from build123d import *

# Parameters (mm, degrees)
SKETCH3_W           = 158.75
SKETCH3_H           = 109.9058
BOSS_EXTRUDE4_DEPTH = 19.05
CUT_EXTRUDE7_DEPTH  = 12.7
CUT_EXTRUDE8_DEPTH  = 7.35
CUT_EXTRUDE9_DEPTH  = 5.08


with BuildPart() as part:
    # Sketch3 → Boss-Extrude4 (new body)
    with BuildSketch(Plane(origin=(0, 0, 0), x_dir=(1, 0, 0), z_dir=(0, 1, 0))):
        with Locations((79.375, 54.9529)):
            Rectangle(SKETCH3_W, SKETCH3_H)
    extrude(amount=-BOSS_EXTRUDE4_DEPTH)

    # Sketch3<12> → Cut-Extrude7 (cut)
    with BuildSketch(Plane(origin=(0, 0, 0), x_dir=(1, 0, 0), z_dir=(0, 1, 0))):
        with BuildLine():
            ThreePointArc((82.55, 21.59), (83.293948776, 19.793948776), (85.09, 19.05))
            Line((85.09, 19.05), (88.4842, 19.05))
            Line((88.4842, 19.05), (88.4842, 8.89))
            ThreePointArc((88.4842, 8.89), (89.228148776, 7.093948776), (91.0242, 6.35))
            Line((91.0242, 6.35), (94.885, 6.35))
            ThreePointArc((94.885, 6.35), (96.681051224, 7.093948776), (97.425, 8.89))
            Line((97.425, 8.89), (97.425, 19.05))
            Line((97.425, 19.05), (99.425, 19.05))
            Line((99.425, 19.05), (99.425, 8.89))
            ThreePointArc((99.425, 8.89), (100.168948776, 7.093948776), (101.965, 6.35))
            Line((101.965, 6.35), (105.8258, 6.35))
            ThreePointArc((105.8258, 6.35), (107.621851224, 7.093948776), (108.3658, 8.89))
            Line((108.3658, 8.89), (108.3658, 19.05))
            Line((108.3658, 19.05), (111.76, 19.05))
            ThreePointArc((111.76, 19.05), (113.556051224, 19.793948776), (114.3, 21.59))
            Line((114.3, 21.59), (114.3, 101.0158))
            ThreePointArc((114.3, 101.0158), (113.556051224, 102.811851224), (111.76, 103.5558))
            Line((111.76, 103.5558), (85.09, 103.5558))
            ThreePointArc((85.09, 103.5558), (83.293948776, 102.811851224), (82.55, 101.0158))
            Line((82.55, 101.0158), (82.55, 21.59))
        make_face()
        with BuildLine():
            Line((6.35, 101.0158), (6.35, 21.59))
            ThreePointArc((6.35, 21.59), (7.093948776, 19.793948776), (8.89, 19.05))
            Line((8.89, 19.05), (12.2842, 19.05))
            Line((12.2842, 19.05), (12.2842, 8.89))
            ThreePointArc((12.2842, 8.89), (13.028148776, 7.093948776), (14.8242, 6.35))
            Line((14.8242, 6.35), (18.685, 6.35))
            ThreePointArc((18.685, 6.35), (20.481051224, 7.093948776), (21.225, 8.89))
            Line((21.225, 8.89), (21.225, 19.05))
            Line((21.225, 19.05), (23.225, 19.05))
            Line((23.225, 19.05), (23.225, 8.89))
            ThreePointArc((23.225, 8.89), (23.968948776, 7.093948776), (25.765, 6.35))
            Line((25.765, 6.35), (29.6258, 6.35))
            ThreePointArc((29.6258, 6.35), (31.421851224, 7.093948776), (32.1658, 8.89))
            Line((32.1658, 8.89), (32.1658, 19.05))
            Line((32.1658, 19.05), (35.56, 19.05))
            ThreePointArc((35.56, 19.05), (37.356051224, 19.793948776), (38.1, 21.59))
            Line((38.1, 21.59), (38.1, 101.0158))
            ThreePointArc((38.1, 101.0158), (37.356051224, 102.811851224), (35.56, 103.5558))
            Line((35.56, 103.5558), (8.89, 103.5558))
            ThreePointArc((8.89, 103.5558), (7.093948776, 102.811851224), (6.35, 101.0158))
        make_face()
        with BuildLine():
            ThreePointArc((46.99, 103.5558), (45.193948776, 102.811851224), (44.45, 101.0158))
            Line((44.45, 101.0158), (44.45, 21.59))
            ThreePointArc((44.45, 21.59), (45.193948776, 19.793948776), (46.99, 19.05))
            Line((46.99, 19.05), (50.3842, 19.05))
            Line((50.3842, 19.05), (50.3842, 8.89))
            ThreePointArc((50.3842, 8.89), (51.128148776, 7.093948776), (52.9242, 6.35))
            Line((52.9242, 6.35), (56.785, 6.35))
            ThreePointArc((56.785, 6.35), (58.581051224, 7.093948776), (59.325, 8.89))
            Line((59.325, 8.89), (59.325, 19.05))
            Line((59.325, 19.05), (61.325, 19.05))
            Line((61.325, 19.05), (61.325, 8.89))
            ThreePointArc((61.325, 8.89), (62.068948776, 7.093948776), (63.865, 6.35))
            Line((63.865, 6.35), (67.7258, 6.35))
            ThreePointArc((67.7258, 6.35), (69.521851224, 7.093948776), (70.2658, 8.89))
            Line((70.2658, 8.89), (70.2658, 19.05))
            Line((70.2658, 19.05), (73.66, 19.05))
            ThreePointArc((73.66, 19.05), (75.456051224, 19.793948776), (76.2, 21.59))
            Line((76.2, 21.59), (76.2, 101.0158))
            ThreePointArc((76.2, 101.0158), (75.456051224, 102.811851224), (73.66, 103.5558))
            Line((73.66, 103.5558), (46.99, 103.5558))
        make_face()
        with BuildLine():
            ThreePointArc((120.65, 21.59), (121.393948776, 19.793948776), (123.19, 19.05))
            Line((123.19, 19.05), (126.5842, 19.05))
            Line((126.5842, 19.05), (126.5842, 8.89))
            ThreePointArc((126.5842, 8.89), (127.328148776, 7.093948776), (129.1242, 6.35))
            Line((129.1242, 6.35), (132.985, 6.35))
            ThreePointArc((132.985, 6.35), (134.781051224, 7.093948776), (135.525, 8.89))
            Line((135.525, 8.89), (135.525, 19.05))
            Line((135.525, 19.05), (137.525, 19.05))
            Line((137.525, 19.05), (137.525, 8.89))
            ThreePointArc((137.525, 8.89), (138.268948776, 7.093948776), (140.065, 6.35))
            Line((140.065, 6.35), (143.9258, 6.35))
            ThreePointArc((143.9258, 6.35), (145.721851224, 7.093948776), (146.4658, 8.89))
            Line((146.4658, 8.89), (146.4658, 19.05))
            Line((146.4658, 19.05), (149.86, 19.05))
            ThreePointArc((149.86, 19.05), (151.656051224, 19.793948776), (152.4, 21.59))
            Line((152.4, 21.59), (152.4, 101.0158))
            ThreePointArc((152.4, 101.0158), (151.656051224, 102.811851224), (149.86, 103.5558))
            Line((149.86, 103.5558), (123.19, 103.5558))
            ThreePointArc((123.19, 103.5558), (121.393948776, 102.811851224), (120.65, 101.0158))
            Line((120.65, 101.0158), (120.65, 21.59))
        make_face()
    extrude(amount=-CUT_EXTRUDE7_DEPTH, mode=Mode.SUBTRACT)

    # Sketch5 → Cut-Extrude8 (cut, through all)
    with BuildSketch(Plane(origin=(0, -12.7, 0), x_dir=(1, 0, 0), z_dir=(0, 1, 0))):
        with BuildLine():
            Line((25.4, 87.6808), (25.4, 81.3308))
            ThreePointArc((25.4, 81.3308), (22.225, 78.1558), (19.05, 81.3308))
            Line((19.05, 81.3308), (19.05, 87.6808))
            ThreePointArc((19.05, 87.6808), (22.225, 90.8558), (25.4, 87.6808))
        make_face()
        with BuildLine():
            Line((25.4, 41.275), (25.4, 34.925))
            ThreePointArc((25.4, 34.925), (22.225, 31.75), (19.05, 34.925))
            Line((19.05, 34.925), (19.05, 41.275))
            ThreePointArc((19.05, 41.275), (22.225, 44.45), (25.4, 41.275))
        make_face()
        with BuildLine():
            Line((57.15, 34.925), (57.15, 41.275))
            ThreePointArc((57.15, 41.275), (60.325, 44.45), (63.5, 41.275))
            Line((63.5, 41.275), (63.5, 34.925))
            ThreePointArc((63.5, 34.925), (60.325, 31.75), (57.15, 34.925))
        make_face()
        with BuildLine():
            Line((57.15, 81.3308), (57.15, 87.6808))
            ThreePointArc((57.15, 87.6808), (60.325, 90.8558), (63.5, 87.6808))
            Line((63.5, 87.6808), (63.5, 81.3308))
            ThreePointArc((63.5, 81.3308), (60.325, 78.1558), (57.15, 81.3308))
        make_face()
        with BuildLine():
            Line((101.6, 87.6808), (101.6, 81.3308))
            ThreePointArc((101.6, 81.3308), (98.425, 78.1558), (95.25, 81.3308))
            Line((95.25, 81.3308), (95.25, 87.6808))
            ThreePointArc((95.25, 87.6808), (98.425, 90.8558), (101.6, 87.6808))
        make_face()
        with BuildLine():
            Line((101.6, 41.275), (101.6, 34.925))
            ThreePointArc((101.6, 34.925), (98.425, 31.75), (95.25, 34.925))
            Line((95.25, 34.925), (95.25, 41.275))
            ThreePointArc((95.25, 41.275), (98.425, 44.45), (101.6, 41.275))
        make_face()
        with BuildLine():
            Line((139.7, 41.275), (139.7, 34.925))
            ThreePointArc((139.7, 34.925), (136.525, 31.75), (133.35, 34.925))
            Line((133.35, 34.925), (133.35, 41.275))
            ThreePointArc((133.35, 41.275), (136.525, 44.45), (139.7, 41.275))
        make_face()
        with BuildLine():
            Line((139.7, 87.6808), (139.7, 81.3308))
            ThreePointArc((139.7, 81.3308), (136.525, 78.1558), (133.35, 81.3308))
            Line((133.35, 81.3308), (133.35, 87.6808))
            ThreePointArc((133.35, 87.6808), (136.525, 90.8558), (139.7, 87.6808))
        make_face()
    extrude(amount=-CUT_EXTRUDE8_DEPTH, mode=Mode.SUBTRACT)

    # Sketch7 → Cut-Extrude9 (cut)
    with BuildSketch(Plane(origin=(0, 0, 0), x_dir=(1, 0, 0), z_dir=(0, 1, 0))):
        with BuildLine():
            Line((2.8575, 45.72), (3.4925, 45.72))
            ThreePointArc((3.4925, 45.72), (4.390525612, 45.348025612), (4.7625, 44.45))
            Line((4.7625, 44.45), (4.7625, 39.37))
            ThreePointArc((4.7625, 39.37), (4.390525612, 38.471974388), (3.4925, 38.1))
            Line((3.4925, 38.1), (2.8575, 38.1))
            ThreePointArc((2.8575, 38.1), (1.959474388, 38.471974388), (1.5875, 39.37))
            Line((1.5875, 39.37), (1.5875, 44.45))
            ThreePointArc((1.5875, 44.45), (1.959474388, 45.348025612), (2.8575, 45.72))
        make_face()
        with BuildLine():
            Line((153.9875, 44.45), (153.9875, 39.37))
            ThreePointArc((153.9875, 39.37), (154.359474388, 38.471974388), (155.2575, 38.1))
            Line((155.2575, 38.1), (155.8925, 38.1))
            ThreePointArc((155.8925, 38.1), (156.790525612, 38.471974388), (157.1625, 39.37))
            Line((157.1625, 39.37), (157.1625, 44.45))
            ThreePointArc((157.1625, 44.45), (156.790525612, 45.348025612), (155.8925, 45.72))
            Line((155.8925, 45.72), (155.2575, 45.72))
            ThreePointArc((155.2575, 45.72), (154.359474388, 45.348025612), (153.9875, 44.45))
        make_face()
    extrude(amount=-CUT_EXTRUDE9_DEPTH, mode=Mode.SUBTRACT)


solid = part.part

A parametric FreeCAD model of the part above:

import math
import FreeCAD as App
import Part
import Sketcher
from FreeCAD import Vector
Q = App.Units.Quantity

doc = App.newDocument("Part")
body = doc.addObject("PartDesign::Body", "Body")

sketch1 = body.newObject("Sketcher::SketchObject", "Sketch")
sketch1.AttachmentSupport = (doc.getObject("XZ_Plane"), [""])
sketch1.MapMode = "FlatFace"
sketch1.addGeometry(Part.LineSegment(Vector(0, -110, 0), Vector(0, 0, 0)), False)
sketch1.addGeometry(Part.LineSegment(Vector(0, 0, 0), Vector(159, 0, 0)), False)
sketch1.addGeometry(Part.LineSegment(Vector(159, 0, 0), Vector(159, -110, 0)), False)
sketch1.addGeometry(Part.LineSegment(Vector(159, -110, 0), Vector(0, -110, 0)), False)
sketch1.addConstraint(Sketcher.Constraint("Coincident", 0, 2, 1, 1))
sketch1.addConstraint(Sketcher.Constraint("Coincident", 1, 2, 2, 1))
sketch1.addConstraint(Sketcher.Constraint("Coincident", 2, 2, 3, 1))
sketch1.addConstraint(Sketcher.Constraint("Coincident", 3, 2, 0, 1))
sketch1.addConstraint(Sketcher.Constraint("Vertical", 0))
sketch1.addConstraint(Sketcher.Constraint("Horizontal", 1))
sketch1.addConstraint(Sketcher.Constraint("Vertical", 2))
sketch1.addConstraint(Sketcher.Constraint("Horizontal", 3))
sketch1.addConstraint(Sketcher.Constraint("Coincident", 0, 2, -1, 1))
sketch1.addConstraint(Sketcher.Constraint("DistanceX", 1, 1, 1, 2, Q("6.25 in")))
sketch1.addConstraint(Sketcher.Constraint("DistanceY", 0, 1, 0, 2, Q("4.327 in")))
pad1 = body.newObject("PartDesign::Pad", "Pad")
pad1.Profile = sketch1
pad1.Length = Q("0.75 in")

sketch2 = body.newObject("Sketcher::SketchObject", "Sketch001")
sketch2.AttachmentSupport = (doc.getObject("XZ_Plane"), [""])
sketch2.MapMode = "FlatFace"
sketch2.addGeometry(Part.ArcOfCircle(Part.Circle(Vector(85.1, -21.6, 0), Vector(0, 0, 1), 2.5), math.radians(90), math.radians(180)), False)
sketch2.addGeometry(Part.LineSegment(Vector(85.1, -19.1, 0), Vector(88.5, -19.1, 0)), False)
sketch2.addGeometry(Part.LineSegment(Vector(88.5, -19.1, 0), Vector(88.5, -8.9, 0)), False)
sketch2.addGeometry(Part.ArcOfCircle(Part.Circle(Vector(91, -8.9, 0), Vector(0, 0, 1), 2.5), math.radians(90), math.radians(180)), False)
sketch2.addGeometry(Part.LineSegment(Vector(91, -6.3, 0), Vector(94.9, -6.3, 0)), False)
sketch2.addGeometry(Part.ArcOfCircle(Part.Circle(Vector(94.9, -8.9, 0), Vector(0, 0, 1), 2.5), math.radians(0), math.radians(90)), False)
sketch2.addGeometry(Part.LineSegment(Vector(97.4, -8.9, 0), Vector(97.4, -19.1, 0)), False)
sketch2.addGeometry(Part.LineSegment(Vector(97.4, -19.1, 0), Vector(99.4, -19.1, 0)), False)
sketch2.addGeometry(Part.LineSegment(Vector(99.4, -19.1, 0), Vector(99.4, -8.9, 0)), False)
sketch2.addGeometry(Part.ArcOfCircle(Part.Circle(Vector(102, -8.9, 0), Vector(0, 0, 1), 2.5), math.radians(90), math.radians(180)), False)
sketch2.addGeometry(Part.LineSegment(Vector(102, -6.3, 0), Vector(105.8, -6.3, 0)), False)
sketch2.addGeometry(Part.ArcOfCircle(Part.Circle(Vector(105.8, -8.9, 0), Vector(0, 0, 1), 2.5), math.radians(0), math.radians(90)), False)
sketch2.addGeometry(Part.LineSegment(Vector(108.4, -8.9, 0), Vector(108.4, -19.1, 0)), False)
sketch2.addGeometry(Part.LineSegment(Vector(108.4, -19.1, 0), Vector(111.8, -19.1, 0)), False)
sketch2.addGeometry(Part.ArcOfCircle(Part.Circle(Vector(111.8, -21.6, 0), Vector(0, 0, 1), 2.5), math.radians(0), math.radians(90)), False)
sketch2.addGeometry(Part.LineSegment(Vector(114.3, -21.6, 0), Vector(114.3, -101, 0)), False)
sketch2.addGeometry(Part.ArcOfCircle(Part.Circle(Vector(111.8, -101, 0), Vector(0, 0, 1), 2.5), math.radians(-90), math.radians(0)), False)
sketch2.addGeometry(Part.LineSegment(Vector(111.8, -103.6, 0), Vector(85.1, -103.6, 0)), False)
sketch2.addGeometry(Part.ArcOfCircle(Part.Circle(Vector(85.1, -101, 0), Vector(0, 0, 1), 2.5), math.radians(-180), math.radians(-90)), False)
sketch2.addGeometry(Part.LineSegment(Vector(82.5, -101, 0), Vector(82.5, -21.6, 0)), False)
sketch2.addGeometry(Part.LineSegment(Vector(6.3, -101, 0), Vector(6.3, -21.6, 0)), False)
sketch2.addGeometry(Part.ArcOfCircle(Part.Circle(Vector(8.9, -21.6, 0), Vector(0, 0, 1), 2.5), math.radians(90), math.radians(180)), False)
sketch2.addGeometry(Part.LineSegment(Vector(8.9, -19.1, 0), Vector(12.3, -19.1, 0)), False)
sketch2.addGeometry(Part.LineSegment(Vector(12.3, -19.1, 0), Vector(12.3, -8.9, 0)), False)
sketch2.addGeometry(Part.ArcOfCircle(Part.Circle(Vector(14.8, -8.9, 0), Vector(0, 0, 1), 2.5), math.radians(90), math.radians(180)), False)
sketch2.addGeometry(Part.LineSegment(Vector(14.8, -6.3, 0), Vector(18.7, -6.3, 0)), False)
sketch2.addGeometry(Part.ArcOfCircle(Part.Circle(Vector(18.7, -8.9, 0), Vector(0, 0, 1), 2.5), math.radians(0), math.radians(90)), False)
sketch2.addGeometry(Part.LineSegment(Vector(21.2, -8.9, 0), Vector(21.2, -19.1, 0)), False)
sketch2.addGeometry(Part.LineSegment(Vector(21.2, -19.1, 0), Vector(23.2, -19.1, 0)), False)
sketch2.addGeometry(Part.LineSegment(Vector(23.2, -19.1, 0), Vector(23.2, -8.9, 0)), False)
sketch2.addGeometry(Part.ArcOfCircle(Part.Circle(Vector(25.8, -8.9, 0), Vector(0, 0, 1), 2.5), math.radians(90), math.radians(180)), False)
sketch2.addGeometry(Part.LineSegment(Vector(25.8, -6.3, 0), Vector(29.6, -6.3, 0)), False)
sketch2.addGeometry(Part.ArcOfCircle(Part.Circle(Vector(29.6, -8.9, 0), Vector(0, 0, 1), 2.5), math.radians(0), math.radians(90)), False)
sketch2.addGeometry(Part.LineSegment(Vector(32.2, -8.9, 0), Vector(32.2, -19.1, 0)), False)
sketch2.addGeometry(Part.LineSegment(Vector(32.2, -19.1, 0), Vector(35.6, -19.1, 0)), False)
sketch2.addGeometry(Part.ArcOfCircle(Part.Circle(Vector(35.6, -21.6, 0), Vector(0, 0, 1), 2.5), math.radians(0), math.radians(90)), False)
sketch2.addGeometry(Part.LineSegment(Vector(38.1, -21.6, 0), Vector(38.1, -101, 0)), False)
sketch2.addGeometry(Part.ArcOfCircle(Part.Circle(Vector(35.6, -101, 0), Vector(0, 0, 1), 2.5), math.radians(-90), math.radians(0)), False)
sketch2.addGeometry(Part.LineSegment(Vector(35.6, -103.6, 0), Vector(8.9, -103.6, 0)), False)
sketch2.addGeometry(Part.ArcOfCircle(Part.Circle(Vector(8.9, -101, 0), Vector(0, 0, 1), 2.5), math.radians(-180), math.radians(-90)), False)
sketch2.addGeometry(Part.ArcOfCircle(Part.Circle(Vector(47, -101, 0), Vector(0, 0, 1), 2.5), math.radians(-180), math.radians(-90)), False)
sketch2.addGeometry(Part.LineSegment(Vector(44.5, -101, 0), Vector(44.5, -21.6, 0)), False)
sketch2.addGeometry(Part.ArcOfCircle(Part.Circle(Vector(47, -21.6, 0), Vector(0, 0, 1), 2.5), math.radians(90), math.radians(180)), False)
sketch2.addGeometry(Part.LineSegment(Vector(47, -19.1, 0), Vector(50.4, -19.1, 0)), False)
sketch2.addGeometry(Part.LineSegment(Vector(50.4, -19.1, 0), Vector(50.4, -8.9, 0)), False)
sketch2.addGeometry(Part.ArcOfCircle(Part.Circle(Vector(52.9, -8.9, 0), Vector(0, 0, 1), 2.5), math.radians(90), math.radians(180)), False)
sketch2.addGeometry(Part.LineSegment(Vector(52.9, -6.3, 0), Vector(56.8, -6.3, 0)), False)
sketch2.addGeometry(Part.ArcOfCircle(Part.Circle(Vector(56.8, -8.9, 0), Vector(0, 0, 1), 2.5), math.radians(0), math.radians(90)), False)
sketch2.addGeometry(Part.LineSegment(Vector(59.3, -8.9, 0), Vector(59.3, -19.1, 0)), False)
sketch2.addGeometry(Part.LineSegment(Vector(59.3, -19.1, 0), Vector(61.3, -19.1, 0)), False)
sketch2.addGeometry(Part.LineSegment(Vector(61.3, -19.1, 0), Vector(61.3, -8.9, 0)), False)
sketch2.addGeometry(Part.ArcOfCircle(Part.Circle(Vector(63.9, -8.9, 0), Vector(0, 0, 1), 2.5), math.radians(90), math.radians(180)), False)
sketch2.addGeometry(Part.LineSegment(Vector(63.9, -6.3, 0), Vector(67.7, -6.3, 0)), False)
sketch2.addGeometry(Part.ArcOfCircle(Part.Circle(Vector(67.7, -8.9, 0), Vector(0, 0, 1), 2.5), math.radians(0), math.radians(90)), False)
sketch2.addGeometry(Part.LineSegment(Vector(70.3, -8.9, 0), Vector(70.3, -19.1, 0)), False)
sketch2.addGeometry(Part.LineSegment(Vector(70.3, -19.1, 0), Vector(73.7, -19.1, 0)), False)
sketch2.addGeometry(Part.ArcOfCircle(Part.Circle(Vector(73.7, -21.6, 0), Vector(0, 0, 1), 2.5), math.radians(0), math.radians(90)), False)
sketch2.addGeometry(Part.LineSegment(Vector(76.2, -21.6, 0), Vector(76.2, -101, 0)), False)
sketch2.addGeometry(Part.ArcOfCircle(Part.Circle(Vector(73.7, -101, 0), Vector(0, 0, 1), 2.5), math.radians(-90), math.radians(0)), False)
sketch2.addGeometry(Part.LineSegment(Vector(73.7, -103.6, 0), Vector(47, -103.6, 0)), False)
sketch2.addGeometry(Part.ArcOfCircle(Part.Circle(Vector(123.2, -21.6, 0), Vector(0, 0, 1), 2.5), math.radians(90), math.radians(180)), False)
sketch2.addGeometry(Part.LineSegment(Vector(123.2, -19.1, 0), Vector(126.6, -19.1, 0)), False)
sketch2.addGeometry(Part.LineSegment(Vector(126.6, -19.1, 0), Vector(126.6, -8.9, 0)), False)
sketch2.addGeometry(Part.ArcOfCircle(Part.Circle(Vector(129.1, -8.9, 0), Vector(0, 0, 1), 2.5), math.radians(90), math.radians(180)), False)
sketch2.addGeometry(Part.LineSegment(Vector(129.1, -6.3, 0), Vector(133, -6.3, 0)), False)
sketch2.addGeometry(Part.ArcOfCircle(Part.Circle(Vector(133, -8.9, 0), Vector(0, 0, 1), 2.5), math.radians(0), math.radians(90)), False)
sketch2.addGeometry(Part.LineSegment(Vector(135.5, -8.9, 0), Vector(135.5, -19.1, 0)), False)
sketch2.addGeometry(Part.LineSegment(Vector(135.5, -19.1, 0), Vector(137.5, -19.1, 0)), False)
sketch2.addGeometry(Part.LineSegment(Vector(137.5, -19.1, 0), Vector(137.5, -8.9, 0)), False)
sketch2.addGeometry(Part.ArcOfCircle(Part.Circle(Vector(140.1, -8.9, 0), Vector(0, 0, 1), 2.5), math.radians(90), math.radians(180)), False)
sketch2.addGeometry(Part.LineSegment(Vector(140.1, -6.3, 0), Vector(143.9, -6.3, 0)), False)
sketch2.addGeometry(Part.ArcOfCircle(Part.Circle(Vector(143.9, -8.9, 0), Vector(0, 0, 1), 2.5), math.radians(0), math.radians(90)), False)
sketch2.addGeometry(Part.LineSegment(Vector(146.5, -8.9, 0), Vector(146.5, -19.1, 0)), False)
sketch2.addGeometry(Part.LineSegment(Vector(146.5, -19.1, 0), Vector(149.9, -19.1, 0)), False)
sketch2.addGeometry(Part.ArcOfCircle(Part.Circle(Vector(149.9, -21.6, 0), Vector(0, 0, 1), 2.5), math.radians(0), math.radians(90)), False)
sketch2.addGeometry(Part.LineSegment(Vector(152.4, -21.6, 0), Vector(152.4, -101, 0)), False)
sketch2.addGeometry(Part.ArcOfCircle(Part.Circle(Vector(149.9, -101, 0), Vector(0, 0, 1), 2.5), math.radians(-90), math.radians(0)), False)
sketch2.addGeometry(Part.LineSegment(Vector(149.9, -103.6, 0), Vector(123.2, -103.6, 0)), False)
sketch2.addGeometry(Part.ArcOfCircle(Part.Circle(Vector(123.2, -101, 0), Vector(0, 0, 1), 2.5), math.radians(-180), math.radians(-90)), False)
sketch2.addGeometry(Part.LineSegment(Vector(120.7, -101, 0), Vector(120.7, -21.6, 0)), False)
sketch2.addConstraint(Sketcher.Constraint("Tangent", 0, 1, 1, 1))
sketch2.addConstraint(Sketcher.Constraint("Coincident", 1, 2, 2, 1))
sketch2.addConstraint(Sketcher.Constraint("Tangent", 2, 2, 3, 2))
sketch2.addConstraint(Sketcher.Constraint("Tangent", 3, 1, 4, 1))
sketch2.addConstraint(Sketcher.Constraint("Tangent", 4, 2, 5, 2))
sketch2.addConstraint(Sketcher.Constraint("Tangent", 5, 1, 6, 1))
sketch2.addConstraint(Sketcher.Constraint("Coincident", 6, 2, 7, 1))
sketch2.addConstraint(Sketcher.Constraint("Coincident", 7, 2, 8, 1))
sketch2.addConstraint(Sketcher.Constraint("Tangent", 8, 2, 9, 2))
sketch2.addConstraint(Sketcher.Constraint("Tangent", 9, 1, 10, 1))
sketch2.addConstraint(Sketcher.Constraint("Tangent", 10, 2, 11, 2))
sketch2.addConstraint(Sketcher.Constraint("Tangent", 11, 1, 12, 1))
sketch2.addConstraint(Sketcher.Constraint("Coincident", 12, 2, 13, 1))
sketch2.addConstraint(Sketcher.Constraint("Tangent", 13, 2, 14, 2))
sketch2.addConstraint(Sketcher.Constraint("Tangent", 14, 1, 15, 1))
sketch2.addConstraint(Sketcher.Constraint("Tangent", 15, 2, 16, 2))
sketch2.addConstraint(Sketcher.Constraint("Tangent", 16, 1, 17, 1))
sketch2.addConstraint(Sketcher.Constraint("Tangent", 17, 2, 18, 2))
sketch2.addConstraint(Sketcher.Constraint("Tangent", 18, 1, 19, 1))
sketch2.addConstraint(Sketcher.Constraint("Tangent", 19, 2, 0, 2))
sketch2.addConstraint(Sketcher.Constraint("Tangent", 20, 2, 21, 2))
sketch2.addConstraint(Sketcher.Constraint("Tangent", 21, 1, 22, 1))
sketch2.addConstraint(Sketcher.Constraint("Coincident", 22, 2, 23, 1))
sketch2.addConstraint(Sketcher.Constraint("Tangent", 23, 2, 24, 2))
sketch2.addConstraint(Sketcher.Constraint("Tangent", 24, 1, 25, 1))
sketch2.addConstraint(Sketcher.Constraint("Tangent", 25, 2, 26, 2))
sketch2.addConstraint(Sketcher.Constraint("Tangent", 26, 1, 27, 1))
sketch2.addConstraint(Sketcher.Constraint("Coincident", 27, 2, 28, 1))
sketch2.addConstraint(Sketcher.Constraint("Coincident", 28, 2, 29, 1))
sketch2.addConstraint(Sketcher.Constraint("Tangent", 29, 2, 30, 2))
sketch2.addConstraint(Sketcher.Constraint("Tangent", 30, 1, 31, 1))
sketch2.addConstraint(Sketcher.Constraint("Tangent", 31, 2, 32, 2))
sketch2.addConstraint(Sketcher.Constraint("Tangent", 32, 1, 33, 1))
sketch2.addConstraint(Sketcher.Constraint("Coincident", 33, 2, 34, 1))
sketch2.addConstraint(Sketcher.Constraint("Tangent", 34, 2, 35, 2))
sketch2.addConstraint(Sketcher.Constraint("Tangent", 35, 1, 36, 1))
sketch2.addConstraint(Sketcher.Constraint("Tangent", 36, 2, 37, 2))
sketch2.addConstraint(Sketcher.Constraint("Tangent", 37, 1, 38, 1))
sketch2.addConstraint(Sketcher.Constraint("Tangent", 38, 2, 39, 2))
sketch2.addConstraint(Sketcher.Constraint("Tangent", 39, 1, 20, 1))
sketch2.addConstraint(Sketcher.Constraint("Tangent", 40, 1, 41, 1))
sketch2.addConstraint(Sketcher.Constraint("Tangent", 41, 2, 42, 2))
sketch2.addConstraint(Sketcher.Constraint("Tangent", 42, 1, 43, 1))
sketch2.addConstraint(Sketcher.Constraint("Coincident", 43, 2, 44, 1))
sketch2.addConstraint(Sketcher.Constraint("Tangent", 44, 2, 45, 2))
sketch2.addConstraint(Sketcher.Constraint("Tangent", 45, 1, 46, 1))
sketch2.addConstraint(Sketcher.Constraint("Tangent", 46, 2, 47, 2))
sketch2.addConstraint(Sketcher.Constraint("Tangent", 47, 1, 48, 1))
sketch2.addConstraint(Sketcher.Constraint("Coincident", 48, 2, 49, 1))
sketch2.addConstraint(Sketcher.Constraint("Coincident", 49, 2, 50, 1))
sketch2.addConstraint(Sketcher.Constraint("Tangent", 50, 2, 51, 2))
sketch2.addConstraint(Sketcher.Constraint("Tangent", 51, 1, 52, 1))
sketch2.addConstraint(Sketcher.Constraint("Tangent", 52, 2, 53, 2))
sketch2.addConstraint(Sketcher.Constraint("Tangent", 53, 1, 54, 1))
sketch2.addConstraint(Sketcher.Constraint("Coincident", 54, 2, 55, 1))
sketch2.addConstraint(Sketcher.Constraint("Tangent", 55, 2, 56, 2))
sketch2.addConstraint(Sketcher.Constraint("Tangent", 56, 1, 57, 1))
sketch2.addConstraint(Sketcher.Constraint("Tangent", 57, 2, 58, 2))
sketch2.addConstraint(Sketcher.Constraint("Tangent", 58, 1, 59, 1))
sketch2.addConstraint(Sketcher.Constraint("Tangent", 59, 2, 40, 2))
sketch2.addConstraint(Sketcher.Constraint("Tangent", 60, 1, 61, 1))
sketch2.addConstraint(Sketcher.Constraint("Coincident", 61, 2, 62, 1))
sketch2.addConstraint(Sketcher.Constraint("Tangent", 62, 2, 63, 2))
sketch2.addConstraint(Sketcher.Constraint("Tangent", 63, 1, 64, 1))
sketch2.addConstraint(Sketcher.Constraint("Tangent", 64, 2, 65, 2))
sketch2.addConstraint(Sketcher.Constraint("Tangent", 65, 1, 66, 1))
sketch2.addConstraint(Sketcher.Constraint("Coincident", 66, 2, 67, 1))
sketch2.addConstraint(Sketcher.Constraint("Coincident", 67, 2, 68, 1))
sketch2.addConstraint(Sketcher.Constraint("Tangent", 68, 2, 69, 2))
sketch2.addConstraint(Sketcher.Constraint("Tangent", 69, 1, 70, 1))
sketch2.addConstraint(Sketcher.Constraint("Tangent", 70, 2, 71, 2))
sketch2.addConstraint(Sketcher.Constraint("Tangent", 71, 1, 72, 1))
sketch2.addConstraint(Sketcher.Constraint("Coincident", 72, 2, 73, 1))
sketch2.addConstraint(Sketcher.Constraint("Tangent", 73, 2, 74, 2))
sketch2.addConstraint(Sketcher.Constraint("Tangent", 74, 1, 75, 1))
sketch2.addConstraint(Sketcher.Constraint("Tangent", 75, 2, 76, 2))
sketch2.addConstraint(Sketcher.Constraint("Tangent", 76, 1, 77, 1))
sketch2.addConstraint(Sketcher.Constraint("Tangent", 77, 2, 78, 2))
sketch2.addConstraint(Sketcher.Constraint("Tangent", 78, 1, 79, 1))
sketch2.addConstraint(Sketcher.Constraint("Tangent", 79, 2, 60, 2))
sketch2.addConstraint(Sketcher.Constraint("Horizontal", 1))
sketch2.addConstraint(Sketcher.Constraint("Vertical", 2))
sketch2.addConstraint(Sketcher.Constraint("Horizontal", 4))
sketch2.addConstraint(Sketcher.Constraint("Vertical", 6))
sketch2.addConstraint(Sketcher.Constraint("Horizontal", 7))
sketch2.addConstraint(Sketcher.Constraint("Vertical", 8))
sketch2.addConstraint(Sketcher.Constraint("Horizontal", 10))
sketch2.addConstraint(Sketcher.Constraint("Vertical", 12))
sketch2.addConstraint(Sketcher.Constraint("Horizontal", 13))
sketch2.addConstraint(Sketcher.Constraint("Vertical", 15))
sketch2.addConstraint(Sketcher.Constraint("Horizontal", 17))
sketch2.addConstraint(Sketcher.Constraint("Vertical", 19))
sketch2.addConstraint(Sketcher.Constraint("Vertical", 20))
sketch2.addConstraint(Sketcher.Constraint("Horizontal", 22))
sketch2.addConstraint(Sketcher.Constraint("Vertical", 23))
sketch2.addConstraint(Sketcher.Constraint("Horizontal", 25))
sketch2.addConstraint(Sketcher.Constraint("Vertical", 27))
sketch2.addConstraint(Sketcher.Constraint("Horizontal", 28))
sketch2.addConstraint(Sketcher.Constraint("Vertical", 29))
sketch2.addConstraint(Sketcher.Constraint("Horizontal", 31))
sketch2.addConstraint(Sketcher.Constraint("Vertical", 33))
sketch2.addConstraint(Sketcher.Constraint("Horizontal", 34))
sketch2.addConstraint(Sketcher.Constraint("Vertical", 36))
sketch2.addConstraint(Sketcher.Constraint("Horizontal", 38))
sketch2.addConstraint(Sketcher.Constraint("Vertical", 41))
sketch2.addConstraint(Sketcher.Constraint("Horizontal", 43))
sketch2.addConstraint(Sketcher.Constraint("Vertical", 44))
sketch2.addConstraint(Sketcher.Constraint("Horizontal", 46))
sketch2.addConstraint(Sketcher.Constraint("Vertical", 48))
sketch2.addConstraint(Sketcher.Constraint("Horizontal", 49))
sketch2.addConstraint(Sketcher.Constraint("Vertical", 50))
sketch2.addConstraint(Sketcher.Constraint("Horizontal", 52))
sketch2.addConstraint(Sketcher.Constraint("Vertical", 54))
sketch2.addConstraint(Sketcher.Constraint("Horizontal", 55))
sketch2.addConstraint(Sketcher.Constraint("Vertical", 57))
sketch2.addConstraint(Sketcher.Constraint("Horizontal", 59))
sketch2.addConstraint(Sketcher.Constraint("Horizontal", 61))
sketch2.addConstraint(Sketcher.Constraint("Vertical", 62))
sketch2.addConstraint(Sketcher.Constraint("Horizontal", 64))
sketch2.addConstraint(Sketcher.Constraint("Vertical", 66))
sketch2.addConstraint(Sketcher.Constraint("Horizontal", 67))
sketch2.addConstraint(Sketcher.Constraint("Vertical", 68))
sketch2.addConstraint(Sketcher.Constraint("Horizontal", 70))
sketch2.addConstraint(Sketcher.Constraint("Vertical", 72))
sketch2.addConstraint(Sketcher.Constraint("Horizontal", 73))
sketch2.addConstraint(Sketcher.Constraint("Vertical", 75))
sketch2.addConstraint(Sketcher.Constraint("Horizontal", 77))
sketch2.addConstraint(Sketcher.Constraint("Vertical", 79))
sketch2.addConstraint(Sketcher.Constraint("Equal", 0, 3))
sketch2.addConstraint(Sketcher.Constraint("Equal", 3, 5))
sketch2.addConstraint(Sketcher.Constraint("Equal", 5, 9))
sketch2.addConstraint(Sketcher.Constraint("Equal", 9, 11))
sketch2.addConstraint(Sketcher.Constraint("Equal", 11, 14))
sketch2.addConstraint(Sketcher.Constraint("Equal", 14, 16))
sketch2.addConstraint(Sketcher.Constraint("Equal", 16, 18))
sketch2.addConstraint(Sketcher.Constraint("Equal", 18, 21))
sketch2.addConstraint(Sketcher.Constraint("Equal", 21, 24))
sketch2.addConstraint(Sketcher.Constraint("Equal", 24, 26))
sketch2.addConstraint(Sketcher.Constraint("Equal", 26, 30))
sketch2.addConstraint(Sketcher.Constraint("Equal", 30, 32))
sketch2.addConstraint(Sketcher.Constraint("Equal", 32, 35))
sketch2.addConstraint(Sketcher.Constraint("Equal", 35, 37))
sketch2.addConstraint(Sketcher.Constraint("Equal", 37, 39))
sketch2.addConstraint(Sketcher.Constraint("Equal", 39, 40))
sketch2.addConstraint(Sketcher.Constraint("Equal", 40, 42))
sketch2.addConstraint(Sketcher.Constraint("Equal", 42, 45))
sketch2.addConstraint(Sketcher.Constraint("Equal", 45, 47))
sketch2.addConstraint(Sketcher.Constraint("Equal", 47, 51))
sketch2.addConstraint(Sketcher.Constraint("Equal", 51, 53))
sketch2.addConstraint(Sketcher.Constraint("Equal", 53, 56))
sketch2.addConstraint(Sketcher.Constraint("Equal", 56, 58))
sketch2.addConstraint(Sketcher.Constraint("Equal", 58, 60))
sketch2.addConstraint(Sketcher.Constraint("Equal", 60, 63))
sketch2.addConstraint(Sketcher.Constraint("Equal", 63, 65))
sketch2.addConstraint(Sketcher.Constraint("Equal", 65, 69))
sketch2.addConstraint(Sketcher.Constraint("Equal", 69, 71))
sketch2.addConstraint(Sketcher.Constraint("Equal", 71, 74))
sketch2.addConstraint(Sketcher.Constraint("Equal", 74, 76))
sketch2.addConstraint(Sketcher.Constraint("Equal", 76, 78))
sketch2.addConstraint(Sketcher.Constraint("Horizontal", 5, 3, 9, 3))
sketch2.addConstraint(Sketcher.Constraint("Horizontal", 0, 3, 14, 3))
sketch2.addConstraint(Sketcher.Constraint("Horizontal", 14, 3, 21, 3))
sketch2.addConstraint(Sketcher.Constraint("Horizontal", 11, 3, 24, 3))
sketch2.addConstraint(Sketcher.Constraint("Horizontal", 26, 3, 30, 3))
sketch2.addConstraint(Sketcher.Constraint("Horizontal", 21, 3, 35, 3))
sketch2.addConstraint(Sketcher.Constraint("Horizontal", 18, 3, 37, 3))
sketch2.addConstraint(Sketcher.Constraint("Horizontal", 39, 3, 40, 3))
sketch2.addConstraint(Sketcher.Constraint("Horizontal", 35, 3, 42, 3))
sketch2.addConstraint(Sketcher.Constraint("Horizontal", 32, 3, 45, 3))
sketch2.addConstraint(Sketcher.Constraint("Horizontal", 47, 3, 51, 3))
sketch2.addConstraint(Sketcher.Constraint("Horizontal", 42, 3, 56, 3))
sketch2.addConstraint(Sketcher.Constraint("Horizontal", 56, 3, 60, 3))
sketch2.addConstraint(Sketcher.Constraint("Horizontal", 53, 3, 63, 3))
sketch2.addConstraint(Sketcher.Constraint("Horizontal", 65, 3, 69, 3))
sketch2.addConstraint(Sketcher.Constraint("Horizontal", 60, 3, 74, 3))
sketch2.addConstraint(Sketcher.Constraint("Horizontal", 58, 3, 76, 3))
sketch2.addConstraint(Sketcher.Constraint("Horizontal", 1, 2, 6, 2))
sketch2.addConstraint(Sketcher.Constraint("Horizontal", 22, 2, 27, 2))
sketch2.addConstraint(Sketcher.Constraint("Horizontal", 43, 2, 48, 2))
sketch2.addConstraint(Sketcher.Constraint("Horizontal", 61, 2, 66, 2))
sketch2.addConstraint(Sketcher.Constraint("Equal", 4, 10))
sketch2.addConstraint(Sketcher.Constraint("Equal", 1, 13))
sketch2.addConstraint(Sketcher.Constraint("Equal", 13, 22))
sketch2.addConstraint(Sketcher.Constraint("Equal", 10, 25))
sketch2.addConstraint(Sketcher.Constraint("Equal", 7, 28))
sketch2.addConstraint(Sketcher.Constraint("Equal", 25, 31))
sketch2.addConstraint(Sketcher.Constraint("Equal", 22, 34))
sketch2.addConstraint(Sketcher.Constraint("Equal", 34, 43))
sketch2.addConstraint(Sketcher.Constraint("Equal", 31, 46))
sketch2.addConstraint(Sketcher.Constraint("Equal", 28, 49))
sketch2.addConstraint(Sketcher.Constraint("Equal", 46, 52))
sketch2.addConstraint(Sketcher.Constraint("Equal", 43, 55))
sketch2.addConstraint(Sketcher.Constraint("Equal", 55, 61))
sketch2.addConstraint(Sketcher.Constraint("Equal", 52, 64))
sketch2.addConstraint(Sketcher.Constraint("Equal", 49, 67))
sketch2.addConstraint(Sketcher.Constraint("Equal", 64, 70))
sketch2.addConstraint(Sketcher.Constraint("Equal", 61, 73))
sketch2.addConstraint(Sketcher.Constraint("Radius", 0, Q("0.1 in")))
sketch2.addConstraint(Sketcher.Constraint("DistanceY", 2, 1, 2, 2, Q("0.4 in")))
sketch2.addConstraint(Sketcher.Constraint("DistanceX", -1, 1, 56, 1, Q("3 in")))
sketch2.addConstraint(Sketcher.Constraint("DistanceX", -1, 1, 74, 1, Q("6 in")))
sketch2.addConstraint(Sketcher.Constraint("DistanceX", 17, 2, 17, 1, Q("1.05 in")))
sketch2.addConstraint(Sketcher.Constraint("DistanceX", -1, 1, 14, 3, Q("4.4 in")))
sketch2.addConstraint(Sketcher.Constraint("DistanceX", -1, 1, 35, 3, Q("1.4 in")))
sketch2.addConstraint(Sketcher.Constraint("DistanceX", 4, 1, 4, 2, Q("0.152 in")))
sketch2.addConstraint(Sketcher.Constraint("DistanceY", 15, 2, 15, 1, Q("3.127 in")))
sketch2.addConstraint(Sketcher.Constraint("DistanceY", 0, 3, -1, 1, Q("0.85 in")))
sketch2.addConstraint(Sketcher.Constraint("DistanceX", 1, 1, 1, 2, 3.3942))
pocket1 = body.newObject("PartDesign::Pocket", "Pocket")
pocket1.Profile = sketch2
pocket1.Length = Q("0.5 in")
pocket1.Reversed = True

sketch3 = body.newObject("Sketcher::SketchObject", "Sketch002")
sketch3.AttachmentSupport = (doc.getObject("XZ_Plane"), [""])
sketch3.MapMode = "FlatFace"
sketch3.AttachmentOffset = App.Placement(Vector(0, 0, 0.5 * 25.4), App.Rotation())
sketch3.addGeometry(Part.LineSegment(Vector(25.4, -81.3, 0), Vector(25.4, -87.7, 0)), False)
sketch3.addGeometry(Part.ArcOfCircle(Part.Circle(Vector(22.2, -87.7, 0), Vector(0, 0, 1), 3.2), math.radians(180), math.radians(360)), False)
sketch3.addGeometry(Part.LineSegment(Vector(19.1, -87.7, 0), Vector(19.1, -81.3, 0)), False)
sketch3.addGeometry(Part.ArcOfCircle(Part.Circle(Vector(22.2, -81.3, 0), Vector(0, 0, 1), 3.2), math.radians(0), math.radians(180)), False)
sketch3.addGeometry(Part.LineSegment(Vector(25.4, -34.9, 0), Vector(25.4, -41.3, 0)), False)
sketch3.addGeometry(Part.ArcOfCircle(Part.Circle(Vector(22.2, -41.3, 0), Vector(0, 0, 1), 3.2), math.radians(180), math.radians(360)), False)
sketch3.addGeometry(Part.LineSegment(Vector(19.1, -41.3, 0), Vector(19.1, -34.9, 0)), False)
sketch3.addGeometry(Part.ArcOfCircle(Part.Circle(Vector(22.2, -34.9, 0), Vector(0, 0, 1), 3.2), math.radians(0), math.radians(180)), False)
sketch3.addGeometry(Part.LineSegment(Vector(57.1, -41.3, 0), Vector(57.1, -34.9, 0)), False)
sketch3.addGeometry(Part.ArcOfCircle(Part.Circle(Vector(60.3, -34.9, 0), Vector(0, 0, 1), 3.2), math.radians(0), math.radians(180)), False)
sketch3.addGeometry(Part.LineSegment(Vector(63.5, -34.9, 0), Vector(63.5, -41.3, 0)), False)
sketch3.addGeometry(Part.ArcOfCircle(Part.Circle(Vector(60.3, -41.3, 0), Vector(0, 0, 1), 3.2), math.radians(180), math.radians(360)), False)
sketch3.addGeometry(Part.LineSegment(Vector(57.1, -87.7, 0), Vector(57.1, -81.3, 0)), False)
sketch3.addGeometry(Part.ArcOfCircle(Part.Circle(Vector(60.3, -81.3, 0), Vector(0, 0, 1), 3.2), math.radians(0), math.radians(180)), False)
sketch3.addGeometry(Part.LineSegment(Vector(63.5, -81.3, 0), Vector(63.5, -87.7, 0)), False)
sketch3.addGeometry(Part.ArcOfCircle(Part.Circle(Vector(60.3, -87.7, 0), Vector(0, 0, 1), 3.2), math.radians(180), math.radians(360)), False)
sketch3.addGeometry(Part.LineSegment(Vector(101.6, -81.3, 0), Vector(101.6, -87.7, 0)), False)
sketch3.addGeometry(Part.ArcOfCircle(Part.Circle(Vector(98.4, -87.7, 0), Vector(0, 0, 1), 3.2), math.radians(180), math.radians(360)), False)
sketch3.addGeometry(Part.LineSegment(Vector(95.2, -87.7, 0), Vector(95.2, -81.3, 0)), False)
sketch3.addGeometry(Part.ArcOfCircle(Part.Circle(Vector(98.4, -81.3, 0), Vector(0, 0, 1), 3.2), math.radians(0), math.radians(180)), False)
sketch3.addGeometry(Part.LineSegment(Vector(101.6, -34.9, 0), Vector(101.6, -41.3, 0)), False)
sketch3.addGeometry(Part.ArcOfCircle(Part.Circle(Vector(98.4, -41.3, 0), Vector(0, 0, 1), 3.2), math.radians(180), math.radians(360)), False)
sketch3.addGeometry(Part.LineSegment(Vector(95.2, -41.3, 0), Vector(95.2, -34.9, 0)), False)
sketch3.addGeometry(Part.ArcOfCircle(Part.Circle(Vector(98.4, -34.9, 0), Vector(0, 0, 1), 3.2), math.radians(0), math.radians(180)), False)
sketch3.addGeometry(Part.LineSegment(Vector(139.7, -34.9, 0), Vector(139.7, -41.3, 0)), False)
sketch3.addGeometry(Part.ArcOfCircle(Part.Circle(Vector(136.5, -41.3, 0), Vector(0, 0, 1), 3.2), math.radians(180), math.radians(360)), False)
sketch3.addGeometry(Part.LineSegment(Vector(133.3, -41.3, 0), Vector(133.3, -34.9, 0)), False)
sketch3.addGeometry(Part.ArcOfCircle(Part.Circle(Vector(136.5, -34.9, 0), Vector(0, 0, 1), 3.2), math.radians(0), math.radians(180)), False)
sketch3.addGeometry(Part.LineSegment(Vector(139.7, -81.3, 0), Vector(139.7, -87.7, 0)), False)
sketch3.addGeometry(Part.ArcOfCircle(Part.Circle(Vector(136.5, -87.7, 0), Vector(0, 0, 1), 3.2), math.radians(180), math.radians(360)), False)
sketch3.addGeometry(Part.LineSegment(Vector(133.3, -87.7, 0), Vector(133.3, -81.3, 0)), False)
sketch3.addGeometry(Part.ArcOfCircle(Part.Circle(Vector(136.5, -81.3, 0), Vector(0, 0, 1), 3.2), math.radians(0), math.radians(180)), False)
sketch3.addConstraint(Sketcher.Constraint("Tangent", 0, 2, 1, 2))
sketch3.addConstraint(Sketcher.Constraint("Tangent", 1, 1, 2, 1))
sketch3.addConstraint(Sketcher.Constraint("Tangent", 2, 2, 3, 2))
sketch3.addConstraint(Sketcher.Constraint("Tangent", 3, 1, 0, 1))
sketch3.addConstraint(Sketcher.Constraint("Tangent", 4, 2, 5, 2))
sketch3.addConstraint(Sketcher.Constraint("Tangent", 5, 1, 6, 1))
sketch3.addConstraint(Sketcher.Constraint("Tangent", 6, 2, 7, 2))
sketch3.addConstraint(Sketcher.Constraint("Tangent", 7, 1, 4, 1))
sketch3.addConstraint(Sketcher.Constraint("Tangent", 8, 2, 9, 2))
sketch3.addConstraint(Sketcher.Constraint("Tangent", 9, 1, 10, 1))
sketch3.addConstraint(Sketcher.Constraint("Tangent", 10, 2, 11, 2))
sketch3.addConstraint(Sketcher.Constraint("Tangent", 11, 1, 8, 1))
sketch3.addConstraint(Sketcher.Constraint("Tangent", 12, 2, 13, 2))
sketch3.addConstraint(Sketcher.Constraint("Tangent", 13, 1, 14, 1))
sketch3.addConstraint(Sketcher.Constraint("Tangent", 14, 2, 15, 2))
sketch3.addConstraint(Sketcher.Constraint("Tangent", 15, 1, 12, 1))
sketch3.addConstraint(Sketcher.Constraint("Tangent", 16, 2, 17, 2))
sketch3.addConstraint(Sketcher.Constraint("Tangent", 17, 1, 18, 1))
sketch3.addConstraint(Sketcher.Constraint("Tangent", 18, 2, 19, 2))
sketch3.addConstraint(Sketcher.Constraint("Tangent", 19, 1, 16, 1))
sketch3.addConstraint(Sketcher.Constraint("Tangent", 20, 2, 21, 2))
sketch3.addConstraint(Sketcher.Constraint("Tangent", 21, 1, 22, 1))
sketch3.addConstraint(Sketcher.Constraint("Tangent", 22, 2, 23, 2))
sketch3.addConstraint(Sketcher.Constraint("Tangent", 23, 1, 20, 1))
sketch3.addConstraint(Sketcher.Constraint("Tangent", 24, 2, 25, 2))
sketch3.addConstraint(Sketcher.Constraint("Tangent", 25, 1, 26, 1))
sketch3.addConstraint(Sketcher.Constraint("Tangent", 26, 2, 27, 2))
sketch3.addConstraint(Sketcher.Constraint("Tangent", 27, 1, 24, 1))
sketch3.addConstraint(Sketcher.Constraint("Tangent", 28, 2, 29, 2))
sketch3.addConstraint(Sketcher.Constraint("Tangent", 29, 1, 30, 1))
sketch3.addConstraint(Sketcher.Constraint("Tangent", 30, 2, 31, 2))
sketch3.addConstraint(Sketcher.Constraint("Tangent", 31, 1, 28, 1))
sketch3.addConstraint(Sketcher.Constraint("Vertical", 0))
sketch3.addConstraint(Sketcher.Constraint("Vertical", 2))
sketch3.addConstraint(Sketcher.Constraint("Vertical", 4))
sketch3.addConstraint(Sketcher.Constraint("Vertical", 6))
sketch3.addConstraint(Sketcher.Constraint("Vertical", 8))
sketch3.addConstraint(Sketcher.Constraint("Vertical", 10))
sketch3.addConstraint(Sketcher.Constraint("Vertical", 12))
sketch3.addConstraint(Sketcher.Constraint("Vertical", 14))
sketch3.addConstraint(Sketcher.Constraint("Vertical", 16))
sketch3.addConstraint(Sketcher.Constraint("Vertical", 18))
sketch3.addConstraint(Sketcher.Constraint("Vertical", 20))
sketch3.addConstraint(Sketcher.Constraint("Vertical", 22))
sketch3.addConstraint(Sketcher.Constraint("Vertical", 24))
sketch3.addConstraint(Sketcher.Constraint("Vertical", 26))
sketch3.addConstraint(Sketcher.Constraint("Vertical", 28))
sketch3.addConstraint(Sketcher.Constraint("Vertical", 30))
sketch3.addConstraint(Sketcher.Constraint("Equal", 3, 5))
sketch3.addConstraint(Sketcher.Constraint("Equal", 7, 9))
sketch3.addConstraint(Sketcher.Constraint("Equal", 11, 13))
sketch3.addConstraint(Sketcher.Constraint("Equal", 15, 17))
sketch3.addConstraint(Sketcher.Constraint("Equal", 19, 21))
sketch3.addConstraint(Sketcher.Constraint("Equal", 23, 25))
sketch3.addConstraint(Sketcher.Constraint("Equal", 27, 29))
sketch3.addConstraint(Sketcher.Constraint("Horizontal", 7, 3, 9, 3))
sketch3.addConstraint(Sketcher.Constraint("Horizontal", 5, 3, 11, 3))
sketch3.addConstraint(Sketcher.Constraint("Horizontal", 3, 3, 13, 3))
sketch3.addConstraint(Sketcher.Constraint("Horizontal", 1, 3, 15, 3))
sketch3.addConstraint(Sketcher.Constraint("Horizontal", 15, 3, 17, 3))
sketch3.addConstraint(Sketcher.Constraint("Horizontal", 13, 3, 19, 3))
sketch3.addConstraint(Sketcher.Constraint("Horizontal", 11, 3, 21, 3))
sketch3.addConstraint(Sketcher.Constraint("Horizontal", 9, 3, 23, 3))
sketch3.addConstraint(Sketcher.Constraint("Horizontal", 21, 3, 25, 3))
sketch3.addConstraint(Sketcher.Constraint("Horizontal", 23, 3, 27, 3))
sketch3.addConstraint(Sketcher.Constraint("Horizontal", 17, 3, 29, 3))
sketch3.addConstraint(Sketcher.Constraint("Horizontal", 19, 3, 31, 3))
sketch3.addConstraint(Sketcher.Constraint("Vertical", 3, 3, 5, 3))
sketch3.addConstraint(Sketcher.Constraint("Vertical", 11, 3, 13, 3))
sketch3.addConstraint(Sketcher.Constraint("Vertical", 19, 3, 21, 3))
sketch3.addConstraint(Sketcher.Constraint("Vertical", 27, 3, 29, 3))
sketch3.addConstraint(Sketcher.Constraint("Equal", 2, 4))
sketch3.addConstraint(Sketcher.Constraint("DistanceX", -1, 1, 0, 2, Q("1 in")))
sketch3.addConstraint(Sketcher.Constraint("DistanceX", -1, 1, 16, 2, Q("4 in")))
sketch3.addConstraint(Sketcher.Constraint("Radius", 1, Q("0.125 in")))
sketch3.addConstraint(Sketcher.Constraint("DistanceX", 11, 3, 25, 3, Q("3 in")))
sketch3.addConstraint(Sketcher.Constraint("DistanceY", 0, 2, 0, 1, Q("0.25 in")))
sketch3.addConstraint(Sketcher.Constraint("DistanceX", -1, 1, 9, 1, Q("2.5 in")))
sketch3.addConstraint(Sketcher.Constraint("DistanceY", 1, 3, -1, 1, Q("3.452 in")))
sketch3.addConstraint(Sketcher.Constraint("DistanceY", 5, 3, -1, 1, Q("1.625 in")))
pocket2 = body.newObject("PartDesign::Pocket", "Pocket001")
pocket2.Profile = sketch3
pocket2.Type = "ThroughAll"
pocket2.Reversed = True

sketch4 = body.newObject("Sketcher::SketchObject", "Sketch003")
sketch4.AttachmentSupport = (doc.getObject("XZ_Plane"), [""])
sketch4.MapMode = "FlatFace"
sketch4.addGeometry(Part.LineSegment(Vector(3.5, -45.7, 0), Vector(2.9, -45.7, 0)), False)
sketch4.addGeometry(Part.ArcOfCircle(Part.Circle(Vector(2.9, -44.5, 0), Vector(0, 0, 1), 1.3), math.radians(180), math.radians(270)), False)
sketch4.addGeometry(Part.LineSegment(Vector(1.6, -44.5, 0), Vector(1.6, -39.4, 0)), False)
sketch4.addGeometry(Part.ArcOfCircle(Part.Circle(Vector(2.9, -39.4, 0), Vector(0, 0, 1), 1.3), math.radians(90), math.radians(180)), False)
sketch4.addGeometry(Part.LineSegment(Vector(2.9, -38.1, 0), Vector(3.5, -38.1, 0)), False)
sketch4.addGeometry(Part.ArcOfCircle(Part.Circle(Vector(3.5, -39.4, 0), Vector(0, 0, 1), 1.3), math.radians(0), math.radians(90)), False)
sketch4.addGeometry(Part.LineSegment(Vector(4.8, -39.4, 0), Vector(4.8, -44.5, 0)), False)
sketch4.addGeometry(Part.ArcOfCircle(Part.Circle(Vector(3.5, -44.5, 0), Vector(0, 0, 1), 1.3), math.radians(-90), math.radians(0)), False)
sketch4.addGeometry(Part.LineSegment(Vector(154, -44.5, 0), Vector(154, -39.4, 0)), False)
sketch4.addGeometry(Part.ArcOfCircle(Part.Circle(Vector(155.3, -39.4, 0), Vector(0, 0, 1), 1.3), math.radians(90), math.radians(180)), False)
sketch4.addGeometry(Part.LineSegment(Vector(155.3, -38.1, 0), Vector(155.9, -38.1, 0)), False)
sketch4.addGeometry(Part.ArcOfCircle(Part.Circle(Vector(155.9, -39.4, 0), Vector(0, 0, 1), 1.3), math.radians(0), math.radians(90)), False)
sketch4.addGeometry(Part.LineSegment(Vector(157.2, -39.4, 0), Vector(157.2, -44.5, 0)), False)
sketch4.addGeometry(Part.ArcOfCircle(Part.Circle(Vector(155.9, -44.5, 0), Vector(0, 0, 1), 1.3), math.radians(-90), math.radians(0)), False)
sketch4.addGeometry(Part.LineSegment(Vector(155.9, -45.7, 0), Vector(155.3, -45.7, 0)), False)
sketch4.addGeometry(Part.ArcOfCircle(Part.Circle(Vector(155.3, -44.5, 0), Vector(0, 0, 1), 1.3), math.radians(180), math.radians(270)), False)
sketch4.addConstraint(Sketcher.Constraint("Tangent", 0, 2, 1, 2))
sketch4.addConstraint(Sketcher.Constraint("Tangent", 1, 1, 2, 1))
sketch4.addConstraint(Sketcher.Constraint("Tangent", 2, 2, 3, 2))
sketch4.addConstraint(Sketcher.Constraint("Tangent", 3, 1, 4, 1))
sketch4.addConstraint(Sketcher.Constraint("Tangent", 4, 2, 5, 2))
sketch4.addConstraint(Sketcher.Constraint("Tangent", 5, 1, 6, 1))
sketch4.addConstraint(Sketcher.Constraint("Tangent", 6, 2, 7, 2))
sketch4.addConstraint(Sketcher.Constraint("Tangent", 7, 1, 0, 1))
sketch4.addConstraint(Sketcher.Constraint("Tangent", 8, 2, 9, 2))
sketch4.addConstraint(Sketcher.Constraint("Tangent", 9, 1, 10, 1))
sketch4.addConstraint(Sketcher.Constraint("Tangent", 10, 2, 11, 2))
sketch4.addConstraint(Sketcher.Constraint("Tangent", 11, 1, 12, 1))
sketch4.addConstraint(Sketcher.Constraint("Tangent", 12, 2, 13, 2))
sketch4.addConstraint(Sketcher.Constraint("Tangent", 13, 1, 14, 1))
sketch4.addConstraint(Sketcher.Constraint("Tangent", 14, 2, 15, 2))
sketch4.addConstraint(Sketcher.Constraint("Tangent", 15, 1, 8, 1))
sketch4.addConstraint(Sketcher.Constraint("Horizontal", 0))
sketch4.addConstraint(Sketcher.Constraint("Vertical", 2))
sketch4.addConstraint(Sketcher.Constraint("Horizontal", 4))
sketch4.addConstraint(Sketcher.Constraint("Vertical", 6))
sketch4.addConstraint(Sketcher.Constraint("Vertical", 8))
sketch4.addConstraint(Sketcher.Constraint("Horizontal", 10))
sketch4.addConstraint(Sketcher.Constraint("Vertical", 12))
sketch4.addConstraint(Sketcher.Constraint("Horizontal", 14))
sketch4.addConstraint(Sketcher.Constraint("Equal", 1, 3))
sketch4.addConstraint(Sketcher.Constraint("Equal", 3, 5))
sketch4.addConstraint(Sketcher.Constraint("Equal", 5, 7))
sketch4.addConstraint(Sketcher.Constraint("Equal", 7, 9))
sketch4.addConstraint(Sketcher.Constraint("Equal", 9, 11))
sketch4.addConstraint(Sketcher.Constraint("Equal", 11, 13))
sketch4.addConstraint(Sketcher.Constraint("Equal", 13, 15))
sketch4.addConstraint(Sketcher.Constraint("Horizontal", 5, 3, 9, 3))
sketch4.addConstraint(Sketcher.Constraint("Horizontal", 7, 3, 13, 3))
sketch4.addConstraint(Sketcher.Constraint("Equal", 4, 10))
sketch4.addConstraint(Sketcher.Constraint("Radius", 1, Q("0.05 in")))
sketch4.addConstraint(Sketcher.Constraint("DistanceY", 2, 1, 2, 2, Q("0.2 in")))
sketch4.addConstraint(Sketcher.Constraint("DistanceX", 3, 3, 9, 3, Q("6 in")))
sketch4.addConstraint(Sketcher.Constraint("DistanceY", 0, 2, -1, 1, Q("1.8 in")))
sketch4.addConstraint(Sketcher.Constraint("DistanceX", 0, 2, 0, 1, Q("0.025 in")))
sketch4.addConstraint(Sketcher.Constraint("DistanceX", -1, 1, 1, 1, Q("0.0625 in")))
pocket3 = body.newObject("PartDesign::Pocket", "Pocket002")
pocket3.Profile = sketch4
pocket3.Length = Q("0.2 in")
pocket3.Reversed = True

doc.recompute()
